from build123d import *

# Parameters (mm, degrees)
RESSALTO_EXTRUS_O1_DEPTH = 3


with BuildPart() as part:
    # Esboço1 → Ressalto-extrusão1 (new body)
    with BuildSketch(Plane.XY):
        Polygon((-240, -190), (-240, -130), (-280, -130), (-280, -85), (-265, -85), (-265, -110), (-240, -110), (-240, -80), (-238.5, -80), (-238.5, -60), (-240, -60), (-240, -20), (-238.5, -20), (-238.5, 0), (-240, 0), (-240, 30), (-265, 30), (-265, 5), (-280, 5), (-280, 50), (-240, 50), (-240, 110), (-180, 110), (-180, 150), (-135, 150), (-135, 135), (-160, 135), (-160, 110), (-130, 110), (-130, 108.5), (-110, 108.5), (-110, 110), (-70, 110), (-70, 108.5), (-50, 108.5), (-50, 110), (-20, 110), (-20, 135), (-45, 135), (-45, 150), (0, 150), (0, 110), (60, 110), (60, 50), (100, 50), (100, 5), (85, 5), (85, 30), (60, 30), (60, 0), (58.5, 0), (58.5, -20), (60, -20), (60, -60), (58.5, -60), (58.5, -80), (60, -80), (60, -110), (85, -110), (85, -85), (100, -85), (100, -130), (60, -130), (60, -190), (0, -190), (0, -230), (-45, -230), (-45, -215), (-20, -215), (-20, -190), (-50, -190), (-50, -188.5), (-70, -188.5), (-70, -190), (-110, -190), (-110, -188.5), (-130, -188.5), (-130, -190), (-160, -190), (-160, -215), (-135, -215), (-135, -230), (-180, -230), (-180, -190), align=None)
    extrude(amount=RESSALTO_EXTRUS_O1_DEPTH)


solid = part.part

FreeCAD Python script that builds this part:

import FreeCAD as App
import Part
import Sketcher

V = App.Vector


def add_polygon(sketch, points):
    """Adds a closed chain of lines whose ends are joined by coincident constraints."""
    first, n = sketch.GeometryCount, len(points)
    for a, b in zip(points, points[1:] + points[:1]):
        sketch.addGeometry(Part.LineSegment(App.Vector(*a, 0), App.Vector(*b, 0)), False)
    for i in range(n):
        sketch.addConstraint(Sketcher.Constraint("Coincident", first + i, 2, first + (i + 1) % n, 1))

doc = App.newDocument("Part")
body = doc.addObject("PartDesign::Body", "Body")

# Sketch on XY plane
sketch1 = doc.addObject("Sketcher::SketchObject", "Sketch")
body.addObject(sketch1)
sketch1.AttachmentSupport = (doc.XY_Plane, [""])
sketch1.MapMode = "FlatFace"
add_polygon(sketch1, [(-240, -130), (-240, -190), (-180, -190), (-180, -230), (-135, -230), (-135, -215), (-160, -215), (-160, -190), (-130, -190), (-130, -188.5), (-110, -188.5), (-110, -190), (-70, -190), (-70, -188.5), (-50, -188.5), (-50, -190), (-20, -190), (-20, -215), (-45, -215), (-45, -230), (0, -230), (0, -190), (60, -190), (60, -130), (100, -130), (100, -85), (85, -85), (85, -110), (60, -110), (60, -80), (58.5, -80), (58.5, -60), (60, -60), (60, -20), (58.5, -20), (58.5, 0), (60, 0), (60, 30), (85, 30), (85, 5), (100, 5), (100, 50), (60, 50), (60, 110), (0, 110), (0, 150), (-45, 150), (-45, 135), (-20, 135), (-20, 110), (-50, 110), (-50, 108.5), (-70, 108.5), (-70, 110), (-110, 110), (-110, 108.5), (-130, 108.5), (-130, 110), (-160, 110), (-160, 135), (-135, 135), (-135, 150), (-180, 150), (-180, 110), (-240, 110), (-240, 50), (-280, 50), (-280, 5), (-265, 5), (-265, 30), (-240, 30), (-240, 0), (-238.5, 0), (-238.5, -20), (-240, -20), (-240, -60), (-238.5, -60), (-238.5, -80), (-240, -80), (-240, -110), (-265, -110), (-265, -85), (-280, -85), (-280, -130)])  # lines 0-83
sketch1.addConstraint([
    Sketcher.Constraint("Vertical", 0),
    Sketcher.Constraint("Horizontal", 1),
    Sketcher.Constraint("Vertical", 2),
    Sketcher.Constraint("Horizontal", 3),
    Sketcher.Constraint("Vertical", 4),
    Sketcher.Constraint("Horizontal", 5),
    Sketcher.Constraint("Vertical", 6),
    Sketcher.Constraint("Horizontal", 7),
    Sketcher.Constraint("Vertical", 8),
    Sketcher.Constraint("Horizontal", 9),
    Sketcher.Constraint("Vertical", 10),
    Sketcher.Constraint("Horizontal", 11),
    Sketcher.Constraint("Vertical", 12),
    Sketcher.Constraint("Horizontal", 13),
    Sketcher.Constraint("Vertical", 14),
    Sketcher.Constraint("Horizontal", 15),
    Sketcher.Constraint("Vertical", 16),
    Sketcher.Constraint("Horizontal", 17),
    Sketcher.Constraint("Vertical", 18),
    Sketcher.Constraint("Horizontal", 19),
    Sketcher.Constraint("Vertical", 20),
    Sketcher.Constraint("Horizontal", 21),
    Sketcher.Constraint("Vertical", 22),
    Sketcher.Constraint("Horizontal", 23),
    Sketcher.Constraint("Vertical", 24),
    Sketcher.Constraint("Horizontal", 25),
    Sketcher.Constraint("Vertical", 26),
    Sketcher.Constraint("Horizontal", 27),
    Sketcher.Constraint("Vertical", 28),
    Sketcher.Constraint("Horizontal", 29),
    Sketcher.Constraint("Vertical", 30),
    Sketcher.Constraint("Horizontal", 31),
    Sketcher.Constraint("Vertical", 32),
    Sketcher.Constraint("Horizontal", 33),
    Sketcher.Constraint("Vertical", 34),
    Sketcher.Constraint("Horizontal", 35),
    Sketcher.Constraint("Vertical", 36),
    Sketcher.Constraint("Horizontal", 37),
    Sketcher.Constraint("Vertical", 38),
    Sketcher.Constraint("Horizontal", 39),
    Sketcher.Constraint("Vertical", 40),
    Sketcher.Constraint("Horizontal", 41),
    Sketcher.Constraint("Vertical", 42),
    Sketcher.Constraint("Horizontal", 43),
    Sketcher.Constraint("Vertical", 44),
    Sketcher.Constraint("Horizontal", 45),
    Sketcher.Constraint("Vertical", 46),
    Sketcher.Constraint("Horizontal", 47),
    Sketcher.Constraint("Vertical", 48),
    Sketcher.Constraint("Horizontal", 49),
    Sketcher.Constraint("Vertical", 50),
    Sketcher.Constraint("Horizontal", 51),
    Sketcher.Constraint("Vertical", 52),
    Sketcher.Constraint("Horizontal", 53),
    Sketcher.Constraint("Vertical", 54),
    Sketcher.Constraint("Horizontal", 55),
    Sketcher.Constraint("Vertical", 56),
    Sketcher.Constraint("Horizontal", 57),
    Sketcher.Constraint("Vertical", 58),
    Sketcher.Constraint("Horizontal", 59),
    Sketcher.Constraint("Vertical", 60),
    Sketcher.Constraint("Horizontal", 61),
    Sketcher.Constraint("Vertical", 62),
    Sketcher.Constraint("Horizontal", 63),
    Sketcher.Constraint("Vertical", 64),
    Sketcher.Constraint("Horizontal", 65),
    Sketcher.Constraint("Vertical", 66),
    Sketcher.Constraint("Horizontal", 67),
    Sketcher.Constraint("Vertical", 68),
    Sketcher.Constraint("Horizontal", 69),
    Sketcher.Constraint("Vertical", 70),
    Sketcher.Constraint("Horizontal", 71),
    Sketcher.Constraint("Vertical", 72),
    Sketcher.Constraint("Horizontal", 73),
    Sketcher.Constraint("Vertical", 74),
    Sketcher.Constraint("Horizontal", 75),
    Sketcher.Constraint("Vertical", 76),
    Sketcher.Constraint("Horizontal", 77),
    Sketcher.Constraint("Vertical", 78),
    Sketcher.Constraint("Horizontal", 79),
    Sketcher.Constraint("Vertical", 80),
    Sketcher.Constraint("Horizontal", 81),
    Sketcher.Constraint("Vertical", 82),
    Sketcher.Constraint("Horizontal", 83),
    Sketcher.Constraint("Symmetric", 27, 2, 42, 2, -1),
    Sketcher.Constraint("Symmetric", 63, 2, 78, 2, -1),
    Sketcher.Constraint("PointOnObject", 19, 2, -2),
    Sketcher.Constraint("PointOnObject", 34, 2, -1),
    Sketcher.Constraint("PointOnObject", 43, 2, -2),
    Sketcher.Constraint("PointOnObject", 70, 2, -1),
    Sketcher.Constraint("Horizontal", 1, 2, 6, 2),
    Sketcher.Constraint("Horizontal", 7, 2, 10, 2),
    Sketcher.Constraint("Horizontal", 9, 2, 12, 2),
    Sketcher.Constraint("Horizontal", 11, 2, 14, 2),
    Sketcher.Constraint("Horizontal", 5, 2, 16, 2),
    Sketcher.Constraint("Horizontal", 3, 2, 18, 2),
    Sketcher.Constraint("Horizontal", 15, 2, 20, 2),
    Sketcher.Constraint("Horizontal", 43, 2, 48, 2),
    Sketcher.Constraint("Horizontal", 49, 2, 52, 2),
    Sketcher.Constraint("Horizontal", 51, 2, 54, 2),
    Sketcher.Constraint("Horizontal", 53, 2, 56, 2),
    Sketcher.Constraint("Horizontal", 47, 2, 58, 2),
    Sketcher.Constraint("Horizontal", 45, 2, 60, 2),
    Sketcher.Constraint("Horizontal", 57, 2, 62, 2),
    Sketcher.Constraint("Horizontal", 41, 2, 64, 2),
    Sketcher.Constraint("Horizontal", 39, 2, 66, 2),
    Sketcher.Constraint("Horizontal", 37, 2, 68, 2),
    Sketcher.Constraint("Horizontal", 33, 2, 72, 2),
    Sketcher.Constraint("Horizontal", 31, 2, 74, 2),
    Sketcher.Constraint("Horizontal", 29, 2, 76, 2),
    Sketcher.Constraint("Horizontal", 25, 2, 80, 2),
    Sketcher.Constraint("Horizontal", 23, 2, 82, 2),
    Sketcher.Constraint("Vertical", 22, 2, 27, 2),
    Sketcher.Constraint("Vertical", 28, 2, 31, 2),
    Sketcher.Constraint("Vertical", 30, 2, 33, 2),
    Sketcher.Constraint("Vertical", 32, 2, 35, 2),
    Sketcher.Constraint("Vertical", 26, 2, 37, 2),
    Sketcher.Constraint("Vertical", 24, 2, 39, 2),
    Sketcher.Constraint("Vertical", 18, 2, 45, 2),
    Sketcher.Constraint("Vertical", 16, 2, 47, 2),
    Sketcher.Constraint("Vertical", 14, 2, 49, 2),
    Sketcher.Constraint("Vertical", 12, 2, 51, 2),
    Sketcher.Constraint("Vertical", 10, 2, 53, 2),
    Sketcher.Constraint("Vertical", 8, 2, 55, 2),
    Sketcher.Constraint("Vertical", 6, 2, 57, 2),
    Sketcher.Constraint("Vertical", 4, 2, 59, 2),
    Sketcher.Constraint("Vertical", 2, 2, 61, 2),
    Sketcher.Constraint("Vertical", 0, 2, 63, 2),
    Sketcher.Constraint("Vertical", 64, 2, 69, 2),
    Sketcher.Constraint("Vertical", 70, 2, 73, 2),
    Sketcher.Constraint("Vertical", 72, 2, 75, 2),
    Sketcher.Constraint("Vertical", 68, 2, 79, 2),
    Sketcher.Constraint("Vertical", 66, 2, 81, 2),
    Sketcher.Constraint("Equal", 9, 13),
    Sketcher.Constraint("Equal", 7, 15),
    Sketcher.Constraint("Equal", 5, 17),
    Sketcher.Constraint("Equal", 3, 19),
    Sketcher.Constraint("Equal", 1, 21),
    Sketcher.Constraint("Equal", 11, 23),
    Sketcher.Constraint("Equal", 17, 27),
    Sketcher.Constraint("Equal", 53, 65),
    Sketcher.Constraint("Equal", 39, 67),
    Sketcher.Constraint("Equal", 35, 71),
    Sketcher.Constraint("Equal", 63, 0),
    Sketcher.Constraint("Equal", 83, 2),
    Sketcher.Constraint("Equal", 81, 4),
    Sketcher.Constraint("Equal", 77, 8),
    Sketcher.Constraint("Equal", 61, 24),
    Sketcher.Constraint("Equal", 16, 26),
    Sketcher.Constraint("Equal", 57, 28),
    Sketcher.Constraint("Equal", 55, 30),
    Sketcher.Constraint("Equal", 20, 32),
    Sketcher.Constraint("Equal", 30, 34),
    Sketcher.Constraint("Equal", 28, 36),
    Sketcher.Constraint("Equal", 26, 38),
    Sketcher.Constraint("Equal", 24, 40),
    Sketcher.Constraint("Equal", 22, 42),
    Sketcher.Constraint("Equal", 32, 44),
    Sketcher.Constraint("Equal", 18, 46),
    Sketcher.Constraint("Equal", 14, 50),
    Sketcher.Constraint("DistanceX", 1, 1, 1, 2, 60.0),
    Sketcher.Constraint("DistanceX", 3, 1, 3, 2, 45.0),
    Sketcher.Constraint("DistanceX", 5, 2, 5, 1, 25.0),
    Sketcher.Constraint("DistanceX", 7, 1, 7, 2, 30.0),
    Sketcher.Constraint("DistanceX", 9, 1, 9, 2, 20.0),
    Sketcher.Constraint("DistanceX", 29, 2, 29, 1, 1.5),
])
pad1 = doc.addObject("PartDesign::Pad", "Pad")
body.addObject(pad1)
pad1.Profile = sketch1
pad1.Length = 3

doc.recompute()
